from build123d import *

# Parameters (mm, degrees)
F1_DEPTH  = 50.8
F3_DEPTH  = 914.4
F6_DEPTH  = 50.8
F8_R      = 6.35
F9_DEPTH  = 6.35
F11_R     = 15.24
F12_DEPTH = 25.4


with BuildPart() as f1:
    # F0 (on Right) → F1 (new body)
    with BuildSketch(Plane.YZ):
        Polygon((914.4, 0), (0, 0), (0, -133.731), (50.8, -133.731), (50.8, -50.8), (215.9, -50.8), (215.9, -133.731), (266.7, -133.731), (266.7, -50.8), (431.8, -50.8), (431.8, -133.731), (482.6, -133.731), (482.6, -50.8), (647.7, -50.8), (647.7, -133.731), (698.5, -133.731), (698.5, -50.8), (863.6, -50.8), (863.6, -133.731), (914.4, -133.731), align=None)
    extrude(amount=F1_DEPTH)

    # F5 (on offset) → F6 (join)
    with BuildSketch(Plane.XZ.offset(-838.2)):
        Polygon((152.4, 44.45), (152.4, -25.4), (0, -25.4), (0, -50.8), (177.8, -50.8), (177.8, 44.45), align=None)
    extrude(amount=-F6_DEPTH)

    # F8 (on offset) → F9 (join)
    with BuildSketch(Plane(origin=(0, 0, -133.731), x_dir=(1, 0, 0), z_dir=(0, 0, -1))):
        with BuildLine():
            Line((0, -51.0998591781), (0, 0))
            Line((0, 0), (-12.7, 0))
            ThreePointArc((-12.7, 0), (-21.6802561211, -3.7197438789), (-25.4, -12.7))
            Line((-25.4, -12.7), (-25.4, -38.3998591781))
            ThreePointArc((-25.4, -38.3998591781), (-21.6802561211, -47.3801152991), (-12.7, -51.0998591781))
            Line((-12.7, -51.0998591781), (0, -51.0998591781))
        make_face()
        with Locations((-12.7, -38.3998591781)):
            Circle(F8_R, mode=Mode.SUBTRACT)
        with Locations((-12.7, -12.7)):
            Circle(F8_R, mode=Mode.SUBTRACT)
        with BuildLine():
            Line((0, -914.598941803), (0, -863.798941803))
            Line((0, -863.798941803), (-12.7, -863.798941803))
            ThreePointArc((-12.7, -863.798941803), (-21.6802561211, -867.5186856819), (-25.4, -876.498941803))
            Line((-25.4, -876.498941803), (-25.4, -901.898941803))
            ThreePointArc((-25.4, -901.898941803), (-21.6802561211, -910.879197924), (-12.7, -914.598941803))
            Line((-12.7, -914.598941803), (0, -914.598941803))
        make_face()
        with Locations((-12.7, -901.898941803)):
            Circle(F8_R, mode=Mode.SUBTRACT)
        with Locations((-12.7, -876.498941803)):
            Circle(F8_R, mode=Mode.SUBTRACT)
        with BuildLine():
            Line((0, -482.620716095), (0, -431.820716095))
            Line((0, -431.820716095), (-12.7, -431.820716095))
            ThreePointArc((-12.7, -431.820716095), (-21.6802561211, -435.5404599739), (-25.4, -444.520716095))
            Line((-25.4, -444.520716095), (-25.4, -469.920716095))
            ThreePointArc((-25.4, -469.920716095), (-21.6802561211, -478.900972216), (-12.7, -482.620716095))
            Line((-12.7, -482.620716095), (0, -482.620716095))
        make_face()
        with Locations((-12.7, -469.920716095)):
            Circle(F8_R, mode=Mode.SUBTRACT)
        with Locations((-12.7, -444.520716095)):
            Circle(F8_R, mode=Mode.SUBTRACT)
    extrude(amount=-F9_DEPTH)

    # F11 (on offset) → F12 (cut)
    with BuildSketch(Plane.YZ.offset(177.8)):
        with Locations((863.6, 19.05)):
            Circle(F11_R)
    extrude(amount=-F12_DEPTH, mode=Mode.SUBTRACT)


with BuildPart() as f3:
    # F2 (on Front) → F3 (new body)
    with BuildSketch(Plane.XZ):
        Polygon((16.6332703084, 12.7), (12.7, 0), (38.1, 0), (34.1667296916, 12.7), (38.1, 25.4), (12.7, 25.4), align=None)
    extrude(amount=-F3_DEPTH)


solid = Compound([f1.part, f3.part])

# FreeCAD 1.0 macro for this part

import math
import FreeCAD as App
import Part
import Sketcher
Q = App.Units.Quantity

doc = App.newDocument("Part")
body = doc.addObject("PartDesign::Body", "Body")

sketch1 = body.newObject("Sketcher::SketchObject", "Sketch")
sketch1.AttachmentSupport = (doc.getObject("YZ_Plane"), [""])
sketch1.MapMode = "FlatFace"
sketch1.addGeometry([
    Part.LineSegment(App.Vector(914, 0, 0), App.Vector(0, 0, 0)),
    Part.LineSegment(App.Vector(0, 0, 0), App.Vector(0, -134, 0)),
    Part.LineSegment(App.Vector(0, -134, 0), App.Vector(51, -134, 0)),
    Part.LineSegment(App.Vector(51, -134, 0), App.Vector(51, -51, 0)),
    Part.LineSegment(App.Vector(51, -51, 0), App.Vector(216, -51, 0)),
    Part.LineSegment(App.Vector(216, -51, 0), App.Vector(216, -134, 0)),
    Part.LineSegment(App.Vector(216, -134, 0), App.Vector(267, -134, 0)),
    Part.LineSegment(App.Vector(267, -134, 0), App.Vector(267, -51, 0)),
    Part.LineSegment(App.Vector(267, -51, 0), App.Vector(432, -51, 0)),
    Part.LineSegment(App.Vector(432, -51, 0), App.Vector(432, -134, 0)),
    Part.LineSegment(App.Vector(432, -134, 0), App.Vector(483, -134, 0)),
    Part.LineSegment(App.Vector(483, -134, 0), App.Vector(483, -51, 0)),
    Part.LineSegment(App.Vector(483, -51, 0), App.Vector(648, -51, 0)),
    Part.LineSegment(App.Vector(648, -51, 0), App.Vector(648, -134, 0)),
    Part.LineSegment(App.Vector(648, -134, 0), App.Vector(698, -134, 0)),
    Part.LineSegment(App.Vector(698, -134, 0), App.Vector(698, -51, 0)),
    Part.LineSegment(App.Vector(698, -51, 0), App.Vector(864, -51, 0)),
    Part.LineSegment(App.Vector(864, -51, 0), App.Vector(864, -134, 0)),
    Part.LineSegment(App.Vector(864, -134, 0), App.Vector(914, -134, 0)),
    Part.LineSegment(App.Vector(914, -134, 0), App.Vector(914, 0, 0)),
], False)
sketch1.addConstraint([
    Sketcher.Constraint("Coincident", 0, 2, 1, 1),
    Sketcher.Constraint("Coincident", 1, 2, 2, 1),
    Sketcher.Constraint("Coincident", 2, 2, 3, 1),
    Sketcher.Constraint("Coincident", 3, 2, 4, 1),
    Sketcher.Constraint("Coincident", 4, 2, 5, 1),
    Sketcher.Constraint("Coincident", 5, 2, 6, 1),
    Sketcher.Constraint("Coincident", 6, 2, 7, 1),
    Sketcher.Constraint("Coincident", 7, 2, 8, 1),
    Sketcher.Constraint("Coincident", 8, 2, 9, 1),
    Sketcher.Constraint("Coincident", 9, 2, 10, 1),
    Sketcher.Constraint("Coincident", 10, 2, 11, 1),
    Sketcher.Constraint("Coincident", 11, 2, 12, 1),
    Sketcher.Constraint("Coincident", 12, 2, 13, 1),
    Sketcher.Constraint("Coincident", 13, 2, 14, 1),
    Sketcher.Constraint("Coincident", 14, 2, 15, 1),
    Sketcher.Constraint("Coincident", 15, 2, 16, 1),
    Sketcher.Constraint("Coincident", 16, 2, 17, 1),
    Sketcher.Constraint("Coincident", 17, 2, 18, 1),
    Sketcher.Constraint("Coincident", 18, 2, 19, 1),
    Sketcher.Constraint("Coincident", 19, 2, 0, 1),
    Sketcher.Constraint("Horizontal", 0),
    Sketcher.Constraint("Vertical", 1),
    Sketcher.Constraint("Horizontal", 2),
    Sketcher.Constraint("Vertical", 3),
    Sketcher.Constraint("Horizontal", 4),
    Sketcher.Constraint("Vertical", 5),
    Sketcher.Constraint("Horizontal", 6),
    Sketcher.Constraint("Vertical", 7),
    Sketcher.Constraint("Horizontal", 8),
    Sketcher.Constraint("Vertical", 9),
    Sketcher.Constraint("Horizontal", 10),
    Sketcher.Constraint("Vertical", 11),
    Sketcher.Constraint("Horizontal", 12),
    Sketcher.Constraint("Vertical", 13),
    Sketcher.Constraint("Horizontal", 14),
    Sketcher.Constraint("Vertical", 15),
    Sketcher.Constraint("Horizontal", 16),
    Sketcher.Constraint("Vertical", 17),
    Sketcher.Constraint("Horizontal", 18),
    Sketcher.Constraint("Vertical", 19),
    Sketcher.Constraint("Coincident", 0, 2, -1, 1),
    Sketcher.Constraint("Horizontal", 2, 2, 5, 2),
    Sketcher.Constraint("Horizontal", 4, 2, 7, 2),
    Sketcher.Constraint("Horizontal", 6, 2, 9, 2),
    Sketcher.Constraint("Horizontal", 8, 2, 11, 2),
    Sketcher.Constraint("Horizontal", 10, 2, 13, 2),
    Sketcher.Constraint("Horizontal", 12, 2, 15, 2),
    Sketcher.Constraint("Horizontal", 14, 2, 17, 2),
    Sketcher.Constraint("Equal", 2, 6),
    Sketcher.Constraint("Equal", 4, 8),
    Sketcher.Constraint("Equal", 6, 10),
    Sketcher.Constraint("Equal", 8, 12),
    Sketcher.Constraint("Equal", 10, 14),
    Sketcher.Constraint("Equal", 12, 16),
    Sketcher.Constraint("Equal", 14, 18),
    Sketcher.Constraint("DistanceX", 0, 2, 0, 1, Q("36 in")),
    Sketcher.Constraint("DistanceX", 2, 1, 2, 2, Q("2 in")),
    Sketcher.Constraint("DistanceY", 3, 2, -1, 1, Q("2 in")),
    Sketcher.Constraint("DistanceY", 1, 2, 1, 1, Q("5.265 in")),
])
pad1 = body.newObject("PartDesign::Pad", "Pad")
pad1.Profile = sketch1
pad1.Length = Q("2 in")

sketch2 = body.newObject("Sketcher::SketchObject", "Sketch001")
sketch2.AttachmentSupport = (doc.getObject("XZ_Plane"), [""])
sketch2.MapMode = "FlatFace"
sketch2.AttachmentOffset = App.Placement(App.Vector(0, 0, -33 * 25.4), App.Rotation())
sketch2.addGeometry([
    Part.LineSegment(App.Vector(152, 44, 0), App.Vector(152, -25, 0)),
    Part.LineSegment(App.Vector(152, -25, 0), App.Vector(0, -25, 0)),
    Part.LineSegment(App.Vector(0, -25, 0), App.Vector(0, -51, 0)),
    Part.LineSegment(App.Vector(0, -51, 0), App.Vector(178, -51, 0)),
    Part.LineSegment(App.Vector(178, -51, 0), App.Vector(178, 44, 0)),
    Part.LineSegment(App.Vector(178, 44, 0), App.Vector(152, 44, 0)),
], False)
sketch2.addConstraint([
    Sketcher.Constraint("Coincident", 0, 2, 1, 1),
    Sketcher.Constraint("Coincident", 1, 2, 2, 1),
    Sketcher.Constraint("Coincident", 2, 2, 3, 1),
    Sketcher.Constraint("Coincident", 3, 2, 4, 1),
    Sketcher.Constraint("Coincident", 4, 2, 5, 1),
    Sketcher.Constraint("Coincident", 5, 2, 0, 1),
    Sketcher.Constraint("Vertical", 0),
    Sketcher.Constraint("Horizontal", 1),
    Sketcher.Constraint("Vertical", 2),
    Sketcher.Constraint("Horizontal", 3),
    Sketcher.Constraint("Vertical", 4),
    Sketcher.Constraint("Horizontal", 5),
    Sketcher.Constraint("PointOnObject", 1, 2, -2),
    Sketcher.Constraint("Equal", 5, 2),
    Sketcher.Constraint("DistanceX", 1, 2, 1, 1, Q("6 in")),
    Sketcher.Constraint("DistanceX", 3, 1, 3, 2, Q("7 in")),
    Sketcher.Constraint("DistanceY", 0, 2, -1, 1, Q("1 in")),
    Sketcher.Constraint("DistanceY", 0, 2, 0, 1, Q("2.75 in")),
])
pad2 = body.newObject("PartDesign::Pad", "Pad001")
pad2.Profile = sketch2
pad2.Length = Q("2 in")
pad2.Reversed = True

sketch3 = body.newObject("Sketcher::SketchObject", "Sketch002")
sketch3.AttachmentSupport = (doc.getObject("XY_Plane"), [""])
sketch3.MapMode = "FlatFace"
sketch3.AttachmentOffset = App.Placement(App.Vector(0, 0, -5.265 * 25.4), App.Rotation())
sketch3.addGeometry([
    Part.LineSegment(App.Vector(0, 51, 0), App.Vector(0, 0, 0)),
    Part.LineSegment(App.Vector(0, 0, 0), App.Vector(-13, 0, 0)),
    Part.ArcOfCircle(Part.Circle(App.Vector(-13, 13, 0), App.Vector(0, 0, 1), 13), math.radians(180), math.radians(270)),
    Part.LineSegment(App.Vector(-25, 13, 0), App.Vector(-25, 38, 0)),
    Part.ArcOfCircle(Part.Circle(App.Vector(-13, 38, 0), App.Vector(0, 0, 1), 13), math.radians(90), math.radians(180)),
    Part.LineSegment(App.Vector(-13, 51, 0), App.Vector(0, 51, 0)),
    Part.Circle(App.Vector(-13, 38, 0), App.Vector(0, 0, 1), 6),
    Part.Circle(App.Vector(-13, 13, 0), App.Vector(0, 0, 1), 6),
    Part.LineSegment(App.Vector(0, 915, 0), App.Vector(0, 864, 0)),
    Part.LineSegment(App.Vector(0, 864, 0), App.Vector(-13, 864, 0)),
    Part.ArcOfCircle(Part.Circle(App.Vector(-13, 876, 0), App.Vector(0, 0, 1), 13), math.radians(180), math.radians(270)),
    Part.LineSegment(App.Vector(-25, 876, 0), App.Vector(-25, 902, 0)),
    Part.ArcOfCircle(Part.Circle(App.Vector(-13, 902, 0), App.Vector(0, 0, 1), 13), math.radians(90), math.radians(180)),
    Part.LineSegment(App.Vector(-13, 915, 0), App.Vector(0, 915, 0)),
    Part.Circle(App.Vector(-13, 902, 0), App.Vector(0, 0, 1), 6),
    Part.Circle(App.Vector(-13, 876, 0), App.Vector(0, 0, 1), 6),
    Part.LineSegment(App.Vector(0, 483, 0), App.Vector(0, 432, 0)),
    Part.LineSegment(App.Vector(0, 432, 0), App.Vector(-13, 432, 0)),
    Part.ArcOfCircle(Part.Circle(App.Vector(-13, 445, 0), App.Vector(0, 0, 1), 13), math.radians(180), math.radians(270)),
    Part.LineSegment(App.Vector(-25, 445, 0), App.Vector(-25, 470, 0)),
    Part.ArcOfCircle(Part.Circle(App.Vector(-13, 470, 0), App.Vector(0, 0, 1), 13), math.radians(90), math.radians(180)),
    Part.LineSegment(App.Vector(-13, 483, 0), App.Vector(0, 483, 0)),
    Part.Circle(App.Vector(-13, 470, 0), App.Vector(0, 0, 1), 6),
    Part.Circle(App.Vector(-13, 445, 0), App.Vector(0, 0, 1), 6),
], False)
sketch3.addConstraint([
    Sketcher.Constraint("Coincident", 0, 2, 1, 1),
    Sketcher.Constraint("Tangent", 1, 2, 2, 2),
    Sketcher.Constraint("Tangent", 2, 1, 3, 1),
    Sketcher.Constraint("Tangent", 3, 2, 4, 2),
    Sketcher.Constraint("Tangent", 4, 1, 5, 1),
    Sketcher.Constraint("Coincident", 5, 2, 0, 1),
    Sketcher.Constraint("Coincident", 8, 2, 9, 1),
    Sketcher.Constraint("Tangent", 9, 2, 10, 2),
    Sketcher.Constraint("Tangent", 10, 1, 11, 1),
    Sketcher.Constraint("Tangent", 11, 2, 12, 2),
    Sketcher.Constraint("Tangent", 12, 1, 13, 1),
    Sketcher.Constraint("Coincident", 13, 2, 8, 1),
    Sketcher.Constraint("Coincident", 16, 2, 17, 1),
    Sketcher.Constraint("Tangent", 17, 2, 18, 2),
    Sketcher.Constraint("Tangent", 18, 1, 19, 1),
    Sketcher.Constraint("Tangent", 19, 2, 20, 2),
    Sketcher.Constraint("Tangent", 20, 1, 21, 1),
    Sketcher.Constraint("Coincident", 21, 2, 16, 1),
    Sketcher.Constraint("Vertical", 0),
    Sketcher.Constraint("Horizontal", 1),
    Sketcher.Constraint("Vertical", 3),
    Sketcher.Constraint("Horizontal", 5),
    Sketcher.Constraint("Vertical", 8),
    Sketcher.Constraint("Horizontal", 9),
    Sketcher.Constraint("Vertical", 11),
    Sketcher.Constraint("Horizontal", 13),
    Sketcher.Constraint("Vertical", 16),
    Sketcher.Constraint("Horizontal", 17),
    Sketcher.Constraint("Vertical", 19),
    Sketcher.Constraint("Horizontal", 21),
    Sketcher.Constraint("Coincident", 0, 2, -1, 1),
    Sketcher.Constraint("Coincident", 6, 3, 4, 3),
    Sketcher.Constraint("Coincident", 7, 3, 2, 3),
    Sketcher.Constraint("Coincident", 14, 3, 12, 3),
    Sketcher.Constraint("Coincident", 15, 3, 10, 3),
    Sketcher.Constraint("Coincident", 22, 3, 20, 3),
    Sketcher.Constraint("Coincident", 23, 3, 18, 3),
    Sketcher.Constraint("Equal", 2, 4),
    Sketcher.Constraint("Equal", 6, 7),
    Sketcher.Constraint("Equal", 4, 10),
    Sketcher.Constraint("Equal", 10, 12),
    Sketcher.Constraint("Equal", 7, 14),
    Sketcher.Constraint("Equal", 14, 15),
    Sketcher.Constraint("Equal", 12, 18),
    Sketcher.Constraint("Equal", 18, 20),
    Sketcher.Constraint("Equal", 15, 22),
    Sketcher.Constraint("Equal", 22, 23),
    Sketcher.Constraint("PointOnObject", 8, 2, -2),
    Sketcher.Constraint("PointOnObject", 16, 2, -2),
    Sketcher.Constraint("Vertical", 7, 3, 10, 3),
    Sketcher.Constraint("Vertical", 15, 3, 18, 3),
    Sketcher.Constraint("Equal", 8, 16),
    Sketcher.Constraint("Diameter", 6, Q("0.5 in")),
    Sketcher.Constraint("Radius", 2, Q("0.5 in")),
    Sketcher.Constraint("DistanceY", 8, 2, 8, 1, Q("2 in")),
    Sketcher.Constraint("DistanceX", 1, 2, 1, 1, Q("0.5 in")),
    Sketcher.Constraint("DistanceY", 0, 2, 0, 1, 51.099859),
    Sketcher.Constraint("DistanceY", -1, 1, 10, 3, 876.498942),
    Sketcher.Constraint("DistanceY", -1, 1, 18, 3, 444.520716),
])
pad3 = body.newObject("PartDesign::Pad", "Pad002")
pad3.Profile = sketch3
pad3.Length = Q("0.25 in")

sketch4 = body.newObject("Sketcher::SketchObject", "Sketch003")
sketch4.AttachmentSupport = (doc.getObject("YZ_Plane"), [""])
sketch4.MapMode = "FlatFace"
sketch4.AttachmentOffset = App.Placement(App.Vector(0, 0, 7 * 25.4), App.Rotation())
sketch4.addGeometry(Part.Circle(App.Vector(864, 19, 0), App.Vector(0, 0, 1), 15), False)
sketch4.addConstraint([
    Sketcher.Constraint("Diameter", 0, Q("1.2 in")),
    Sketcher.Constraint("DistanceX", -1, 1, 0, 3, Q("34 in")),
    Sketcher.Constraint("DistanceY", -1, 1, 0, 3, Q("0.75 in")),
])
pocket1 = body.newObject("PartDesign::Pocket", "Pocket")
pocket1.Profile = sketch4
pocket1.Length = Q("1 in")
body2 = doc.addObject("PartDesign::Body", "Body001")

sketch5 = body2.newObject("Sketcher::SketchObject", "Sketch004")
sketch5.AttachmentSupport = (doc.getObject("XZ_Plane001"), [""])
sketch5.MapMode = "FlatFace"
sketch5.addGeometry([
    Part.LineSegment(App.Vector(17, 13, 0), App.Vector(13, 0, 0)),
    Part.LineSegment(App.Vector(13, 0, 0), App.Vector(38, 0, 0)),
    Part.LineSegment(App.Vector(38, 0, 0), App.Vector(34, 13, 0)),
    Part.LineSegment(App.Vector(34, 13, 0), App.Vector(38, 25, 0)),
    Part.LineSegment(App.Vector(38, 25, 0), App.Vector(13, 25, 0)),
    Part.LineSegment(App.Vector(13, 25, 0), App.Vector(17, 13, 0)),
], False)
sketch5.addConstraint([
    Sketcher.Constraint("Coincident", 0, 2, 1, 1),
    Sketcher.Constraint("Coincident", 1, 2, 2, 1),
    Sketcher.Constraint("Coincident", 2, 2, 3, 1),
    Sketcher.Constraint("Coincident", 3, 2, 4, 1),
    Sketcher.Constraint("Coincident", 4, 2, 5, 1),
    Sketcher.Constraint("Coincident", 5, 2, 0, 1),
    Sketcher.Constraint("Horizontal", 1),
    Sketcher.Constraint("Horizontal", 4),
    Sketcher.Constraint("PointOnObject", 0, 2, -1),
    Sketcher.Constraint("Parallel", 0, 3),
    Sketcher.Constraint("Parallel", 2, 5),
    Sketcher.Constraint("Horizontal", 2, 2, 5, 2),
    Sketcher.Constraint("Vertical", 1, 2, 3, 2),
    Sketcher.Constraint("Vertical", 0, 2, 4, 2),
    Sketcher.Constraint("DistanceX", 1, 1, 1, 2, Q("1 in")),
    Sketcher.Constraint("DistanceY", -1, 1, 3, 2, Q("1 in")),
    Sketcher.Constraint("DistanceX", -1, 1, 0, 2, Q("0.5 in")),
    Sketcher.Constraint("DistanceX", -1, 1, 2, 2, 34.16673),
])
pad4 = body2.newObject("PartDesign::Pad", "Pad003")
pad4.Profile = sketch5
pad4.Length = Q("36 in")
pad4.Reversed = True

doc.recompute()
